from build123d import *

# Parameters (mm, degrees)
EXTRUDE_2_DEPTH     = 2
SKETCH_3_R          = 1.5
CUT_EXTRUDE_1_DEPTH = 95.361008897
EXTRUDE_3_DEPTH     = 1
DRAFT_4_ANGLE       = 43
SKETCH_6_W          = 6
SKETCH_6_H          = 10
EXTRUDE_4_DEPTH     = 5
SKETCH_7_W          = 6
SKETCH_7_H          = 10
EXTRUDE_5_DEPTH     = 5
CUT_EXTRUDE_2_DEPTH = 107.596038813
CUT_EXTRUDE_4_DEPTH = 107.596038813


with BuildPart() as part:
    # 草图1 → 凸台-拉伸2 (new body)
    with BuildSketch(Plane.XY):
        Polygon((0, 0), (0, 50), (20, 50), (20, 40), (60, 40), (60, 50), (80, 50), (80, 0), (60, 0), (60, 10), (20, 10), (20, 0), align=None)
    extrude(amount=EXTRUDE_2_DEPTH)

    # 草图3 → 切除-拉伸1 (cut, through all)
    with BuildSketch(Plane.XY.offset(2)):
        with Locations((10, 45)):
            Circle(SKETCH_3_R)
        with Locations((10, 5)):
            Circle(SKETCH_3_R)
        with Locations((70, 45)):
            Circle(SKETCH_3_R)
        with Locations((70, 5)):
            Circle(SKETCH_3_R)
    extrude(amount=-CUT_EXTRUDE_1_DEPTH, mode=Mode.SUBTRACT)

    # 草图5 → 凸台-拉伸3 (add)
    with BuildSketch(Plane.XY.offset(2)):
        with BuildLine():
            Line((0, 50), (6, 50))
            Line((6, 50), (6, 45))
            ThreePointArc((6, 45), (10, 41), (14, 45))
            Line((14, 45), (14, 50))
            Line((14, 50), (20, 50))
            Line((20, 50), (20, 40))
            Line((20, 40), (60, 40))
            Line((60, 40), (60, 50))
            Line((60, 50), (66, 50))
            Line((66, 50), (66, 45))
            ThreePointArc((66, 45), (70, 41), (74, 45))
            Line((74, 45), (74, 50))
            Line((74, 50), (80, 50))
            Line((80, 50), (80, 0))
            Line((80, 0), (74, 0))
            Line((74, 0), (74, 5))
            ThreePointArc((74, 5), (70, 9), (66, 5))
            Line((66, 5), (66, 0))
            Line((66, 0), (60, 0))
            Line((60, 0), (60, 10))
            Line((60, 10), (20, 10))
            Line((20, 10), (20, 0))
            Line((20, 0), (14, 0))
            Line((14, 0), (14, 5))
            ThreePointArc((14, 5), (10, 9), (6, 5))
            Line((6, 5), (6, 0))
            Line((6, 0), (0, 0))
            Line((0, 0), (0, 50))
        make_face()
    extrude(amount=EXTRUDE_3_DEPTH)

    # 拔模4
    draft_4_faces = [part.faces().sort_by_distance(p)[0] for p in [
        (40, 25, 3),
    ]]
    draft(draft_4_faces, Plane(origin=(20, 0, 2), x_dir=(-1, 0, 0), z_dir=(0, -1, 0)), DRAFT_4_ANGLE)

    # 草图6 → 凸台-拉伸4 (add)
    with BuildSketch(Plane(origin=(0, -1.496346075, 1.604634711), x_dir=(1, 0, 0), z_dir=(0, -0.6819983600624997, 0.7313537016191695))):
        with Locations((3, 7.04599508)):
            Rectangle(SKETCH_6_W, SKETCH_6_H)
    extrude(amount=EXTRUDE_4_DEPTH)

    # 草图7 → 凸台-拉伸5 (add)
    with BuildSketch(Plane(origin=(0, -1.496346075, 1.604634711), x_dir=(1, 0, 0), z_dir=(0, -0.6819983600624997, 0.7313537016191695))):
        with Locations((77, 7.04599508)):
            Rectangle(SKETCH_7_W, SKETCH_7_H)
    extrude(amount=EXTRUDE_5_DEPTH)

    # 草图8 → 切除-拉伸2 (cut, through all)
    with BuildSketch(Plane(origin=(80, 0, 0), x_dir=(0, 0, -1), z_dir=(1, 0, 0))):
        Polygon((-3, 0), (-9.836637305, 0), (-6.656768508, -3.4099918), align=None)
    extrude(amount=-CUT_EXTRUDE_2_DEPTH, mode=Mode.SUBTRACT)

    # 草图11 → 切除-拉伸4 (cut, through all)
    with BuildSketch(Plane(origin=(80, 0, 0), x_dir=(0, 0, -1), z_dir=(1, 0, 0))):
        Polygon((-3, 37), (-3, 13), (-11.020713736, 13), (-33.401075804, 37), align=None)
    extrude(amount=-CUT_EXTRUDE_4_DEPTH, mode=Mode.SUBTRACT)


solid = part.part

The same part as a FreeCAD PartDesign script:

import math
import FreeCAD as App
import Part
import Sketcher

V = App.Vector
Q = App.Units.Quantity


def faces_at(feature, points):
    """Names of the faces that lie closest to the given points."""
    faces = feature.Shape.Faces
    near = lambda p: min(range(len(faces)), key=lambda i: faces[i].distToShape(Part.Vertex(*p))[0])
    return sorted({f"Face{near(p) + 1}" for p in points})


def add_polygon(sketch, points):
    """Adds a closed chain of lines whose ends are joined by coincident constraints."""
    first, n = sketch.GeometryCount, len(points)
    for a, b in zip(points, points[1:] + points[:1]):
        sketch.addGeometry(Part.LineSegment(App.Vector(*a, 0), App.Vector(*b, 0)), False)
    for i in range(n):
        sketch.addConstraint(Sketcher.Constraint("Coincident", first + i, 2, first + (i + 1) % n, 1))

doc = App.newDocument("Part")
params = doc.addObject("Spreadsheet::Sheet", "Params")
for row, (alias, value) in enumerate([
    ("sketch1_width", "20 mm"),
    ("sketch1_width2", "40 mm"),
    ("sketch1_height", "50 mm"),
    ("sketch1_height2", "10 mm"),
    ("pad1_length", "2 mm"),
    ("sketch2_diameter", "3 mm"),
    ("sketch3_radius", "4 mm"),
    ("sketch3_width", "6 mm"),
    ("sketch3_width2", "40 mm"),
    ("sketch3_height", "50 mm"),
    ("sketch3_height2", "5 mm"),
    ("pad2_length", "1 mm"),
    ("draft_angle", "43 deg"),
    ("sketch4_width", "6 mm"),
    ("sketch4_height", "10 mm"),
    ("pad3_length", "5 mm"),
    ("sketch5_width", "6 mm"),
    ("sketch5_height", "10 mm"),
    ("pad4_length", "5 mm"),
    ("sketch6_length", "5 mm"),
    ("sketch7_width", "24 mm"),
], start=1):
    params.set(f"A{row}", alias)
    params.set(f"B{row}", "=" + value)
    params.setAlias(f"B{row}", alias)

body = doc.addObject("PartDesign::Body", "Body")

sketch1 = body.newObject("Sketcher::SketchObject", "Sketch")
sketch1.AttachmentSupport = (doc.getObject("XY_Plane"), [""])
sketch1.MapMode = "FlatFace"
add_polygon(sketch1, [(0, 50), (0, 0), (20, 0), (20, 10), (60, 10), (60, 0), (80, 0), (80, 50), (60, 50), (60, 40), (20, 40), (20, 50)])
sketch1.addConstraint([
    Sketcher.Constraint("Vertical", 0),
    Sketcher.Constraint("Horizontal", 1),
    Sketcher.Constraint("Vertical", 2),
    Sketcher.Constraint("Horizontal", 3),
    Sketcher.Constraint("Vertical", 4),
    Sketcher.Constraint("Horizontal", 5),
    Sketcher.Constraint("Vertical", 6),
    Sketcher.Constraint("Horizontal", 7),
    Sketcher.Constraint("Vertical", 8),
    Sketcher.Constraint("Horizontal", 9),
    Sketcher.Constraint("Vertical", 10),
    Sketcher.Constraint("Horizontal", 11),
    Sketcher.Constraint("Coincident", 0, 2, -1, 1),
    Sketcher.Constraint("PointOnObject", 4, 2, -1),
    Sketcher.Constraint("Horizontal", 7, 2, 10, 2),
    Sketcher.Constraint("Vertical", 4, 2, 7, 2),
    Sketcher.Constraint("Vertical", 2, 2, 9, 2),
    Sketcher.Constraint("Equal", 1, 5),
    Sketcher.Constraint("Equal", 4, 8),
    Sketcher.Constraint("DistanceX", 1, 1, 1, 2, Q("20 mm")),
    Sketcher.Constraint("DistanceX", 3, 1, 3, 2, Q("40 mm")),
    Sketcher.Constraint("DistanceY", 0, 2, 0, 1, Q("50 mm")),
    Sketcher.Constraint("DistanceY", 2, 1, 2, 2, Q("10 mm")),
])
sketch1.setExpression("Constraints[31]", "Params.sketch1_width")
sketch1.setExpression("Constraints[32]", "Params.sketch1_width2")
sketch1.setExpression("Constraints[33]", "Params.sketch1_height")
sketch1.setExpression("Constraints[34]", "Params.sketch1_height2")
pad1 = body.newObject("PartDesign::Pad", "Pad")
pad1.Profile = sketch1
pad1.setExpression("Length", "Params.pad1_length")

sketch2 = body.newObject("Sketcher::SketchObject", "Sketch001")
sketch2.AttachmentSupport = (doc.getObject("XY_Plane"), [""])
sketch2.MapMode = "FlatFace"
sketch2.AttachmentOffset = App.Placement(V(0, 0, 2), App.Rotation())
sketch2.addGeometry([
    Part.Circle(V(10, 45, 0), V(0, 0, 1), 1.5),
    Part.Circle(V(10, 5, 0), V(0, 0, 1), 1.5),
    Part.Circle(V(70, 45, 0), V(0, 0, 1), 1.5),
    Part.Circle(V(70, 5, 0), V(0, 0, 1), 1.5),
], False)
sketch2.addConstraint([
    Sketcher.Constraint("Equal", 0, 1),
    Sketcher.Constraint("Equal", 1, 2),
    Sketcher.Constraint("Equal", 2, 3),
    Sketcher.Constraint("Horizontal", 0, 3, 2, 3),
    Sketcher.Constraint("Horizontal", 1, 3, 3, 3),
    Sketcher.Constraint("Vertical", 0, 3, 1, 3),
    Sketcher.Constraint("Vertical", 2, 3, 3, 3),
    Sketcher.Constraint("Diameter", 0, Q("3 mm")),
    Sketcher.Constraint("DistanceX", -1, 1, 0, 3, Q("10 mm")),
    Sketcher.Constraint("DistanceY", -1, 1, 0, 3, Q("45 mm")),
    Sketcher.Constraint("DistanceY", -1, 1, 1, 3, Q("5 mm")),
    Sketcher.Constraint("DistanceX", -1, 1, 2, 3, Q("70 mm")),
])
sketch2.setExpression("Constraints[7]", "Params.sketch2_diameter")
pocket1 = body.newObject("PartDesign::Pocket", "Pocket")
pocket1.Profile = sketch2
pocket1.Type = "ThroughAll"

sketch3 = body.newObject("Sketcher::SketchObject", "Sketch002")
sketch3.AttachmentSupport = (doc.getObject("XY_Plane"), [""])
sketch3.MapMode = "FlatFace"
sketch3.AttachmentOffset = App.Placement(V(0, 0, 2), App.Rotation())
sketch3.addGeometry([
    Part.LineSegment(V(6, 50, 0), V(0, 50, 0)),
    Part.LineSegment(V(0, 50, 0), V(0, 0, 0)),
    Part.LineSegment(V(0, 0, 0), V(6, 0, 0)),
    Part.LineSegment(V(6, 0, 0), V(6, 5, 0)),
    Part.ArcOfCircle(Part.Circle(V(10, 5, 0), V(0, 0, 1), 4), math.radians(0), math.radians(180)),
    Part.LineSegment(V(14, 5, 0), V(14, 0, 0)),
    Part.LineSegment(V(14, 0, 0), V(20, 0, 0)),
    Part.LineSegment(V(20, 0, 0), V(20, 10, 0)),
    Part.LineSegment(V(20, 10, 0), V(60, 10, 0)),
    Part.LineSegment(V(60, 10, 0), V(60, 0, 0)),
    Part.LineSegment(V(60, 0, 0), V(66, 0, 0)),
    Part.LineSegment(V(66, 0, 0), V(66, 5, 0)),
    Part.ArcOfCircle(Part.Circle(V(70, 5, 0), V(0, 0, 1), 4), math.radians(0), math.radians(180)),
    Part.LineSegment(V(74, 5, 0), V(74, 0, 0)),
    Part.LineSegment(V(74, 0, 0), V(80, 0, 0)),
    Part.LineSegment(V(80, 0, 0), V(80, 50, 0)),
    Part.LineSegment(V(80, 50, 0), V(74, 50, 0)),
    Part.LineSegment(V(74, 50, 0), V(74, 45, 0)),
    Part.ArcOfCircle(Part.Circle(V(70, 45, 0), V(0, 0, 1), 4), math.radians(180), math.radians(360)),
    Part.LineSegment(V(66, 45, 0), V(66, 50, 0)),
    Part.LineSegment(V(66, 50, 0), V(60, 50, 0)),
    Part.LineSegment(V(60, 50, 0), V(60, 40, 0)),
    Part.LineSegment(V(60, 40, 0), V(20, 40, 0)),
    Part.LineSegment(V(20, 40, 0), V(20, 50, 0)),
    Part.LineSegment(V(20, 50, 0), V(14, 50, 0)),
    Part.LineSegment(V(14, 50, 0), V(14, 45, 0)),
    Part.ArcOfCircle(Part.Circle(V(10, 45, 0), V(0, 0, 1), 4), math.radians(180), math.radians(360)),
    Part.LineSegment(V(6, 45, 0), V(6, 50, 0)),
], False)
sketch3.addConstraint([
    Sketcher.Constraint("Coincident", 0, 2, 1, 1),
    Sketcher.Constraint("Coincident", 1, 2, 2, 1),
    Sketcher.Constraint("Coincident", 2, 2, 3, 1),
    Sketcher.Constraint("Tangent", 3, 2, 4, 2),
    Sketcher.Constraint("Tangent", 4, 1, 5, 1),
    Sketcher.Constraint("Coincident", 5, 2, 6, 1),
    Sketcher.Constraint("Coincident", 6, 2, 7, 1),
    Sketcher.Constraint("Coincident", 7, 2, 8, 1),
    Sketcher.Constraint("Coincident", 8, 2, 9, 1),
    Sketcher.Constraint("Coincident", 9, 2, 10, 1),
    Sketcher.Constraint("Coincident", 10, 2, 11, 1),
    Sketcher.Constraint("Tangent", 11, 2, 12, 2),
    Sketcher.Constraint("Tangent", 12, 1, 13, 1),
    Sketcher.Constraint("Coincident", 13, 2, 14, 1),
    Sketcher.Constraint("Coincident", 14, 2, 15, 1),
    Sketcher.Constraint("Coincident", 15, 2, 16, 1),
    Sketcher.Constraint("Coincident", 16, 2, 17, 1),
    Sketcher.Constraint("Tangent", 17, 2, 18, 2),
    Sketcher.Constraint("Tangent", 18, 1, 19, 1),
    Sketcher.Constraint("Coincident", 19, 2, 20, 1),
    Sketcher.Constraint("Coincident", 20, 2, 21, 1),
    Sketcher.Constraint("Coincident", 21, 2, 22, 1),
    Sketcher.Constraint("Coincident", 22, 2, 23, 1),
    Sketcher.Constraint("Coincident", 23, 2, 24, 1),
    Sketcher.Constraint("Coincident", 24, 2, 25, 1),
    Sketcher.Constraint("Tangent", 25, 2, 26, 2),
    Sketcher.Constraint("Tangent", 26, 1, 27, 1),
    Sketcher.Constraint("Coincident", 27, 2, 0, 1),
    Sketcher.Constraint("Horizontal", 0),
    Sketcher.Constraint("Vertical", 1),
    Sketcher.Constraint("Horizontal", 2),
    Sketcher.Constraint("Vertical", 3),
    Sketcher.Constraint("Vertical", 5),
    Sketcher.Constraint("Horizontal", 6),
    Sketcher.Constraint("Vertical", 7),
    Sketcher.Constraint("Horizontal", 8),
    Sketcher.Constraint("Vertical", 9),
    Sketcher.Constraint("Horizontal", 10),
    Sketcher.Constraint("Vertical", 11),
    Sketcher.Constraint("Vertical", 13),
    Sketcher.Constraint("Horizontal", 14),
    Sketcher.Constraint("Vertical", 15),
    Sketcher.Constraint("Horizontal", 16),
    Sketcher.Constraint("Vertical", 17),
    Sketcher.Constraint("Vertical", 19),
    Sketcher.Constraint("Horizontal", 20),
    Sketcher.Constraint("Vertical", 21),
    Sketcher.Constraint("Horizontal", 22),
    Sketcher.Constraint("Vertical", 23),
    Sketcher.Constraint("Horizontal", 24),
    Sketcher.Constraint("Vertical", 25),
    Sketcher.Constraint("Vertical", 27),
    Sketcher.Constraint("Coincident", 1, 2, -1, 1),
    Sketcher.Constraint("Equal", 4, 12),
    Sketcher.Constraint("Equal", 12, 18),
    Sketcher.Constraint("Equal", 18, 26),
    Sketcher.Constraint("PointOnObject", 5, 2, -1),
    Sketcher.Constraint("PointOnObject", 9, 2, -1),
    Sketcher.Constraint("PointOnObject", 13, 2, -1),
    Sketcher.Constraint("Horizontal", 4, 3, 12, 3),
    Sketcher.Constraint("Horizontal", 18, 3, 26, 3),
    Sketcher.Constraint("Horizontal", 0, 2, 15, 2),
    Sketcher.Constraint("Horizontal", 16, 2, 19, 2),
    Sketcher.Constraint("Horizontal", 20, 2, 23, 2),
    Sketcher.Constraint("Vertical", 12, 3, 18, 3),
    Sketcher.Constraint("Vertical", 4, 3, 26, 3),
    Sketcher.Constraint("Vertical", 9, 2, 20, 2),
    Sketcher.Constraint("Vertical", 7, 2, 22, 2),
    Sketcher.Constraint("Equal", 2, 6),
    Sketcher.Constraint("Equal", 6, 10),
    Sketcher.Constraint("Equal", 10, 14),
    Sketcher.Constraint("Equal", 13, 17),
    Sketcher.Constraint("Equal", 9, 21),
    Sketcher.Constraint("Radius", 4, Q("4 mm")),
    Sketcher.Constraint("DistanceX", 0, 2, 0, 1, Q("6 mm")),
    Sketcher.Constraint("DistanceX", 8, 1, 8, 2, Q("40 mm")),
    Sketcher.Constraint("DistanceY", 1, 2, 1, 1, Q("50 mm")),
    Sketcher.Constraint("DistanceY", 3, 1, 3, 2, Q("5 mm")),
    Sketcher.Constraint("DistanceY", 7, 1, 7, 2, Q("10 mm")),
])
sketch3.setExpression("Constraints[73]", "Params.sketch3_radius")
sketch3.setExpression("Constraints[74]", "Params.sketch3_width")
sketch3.setExpression("Constraints[75]", "Params.sketch3_width2")
sketch3.setExpression("Constraints[76]", "Params.sketch3_height")
sketch3.setExpression("Constraints[77]", "Params.sketch3_height2")
pad2 = body.newObject("PartDesign::Pad", "Pad001")
pad2.Profile = sketch3
pad2.setExpression("Length", "Params.pad2_length")
doc.recompute()

draft = body.newObject("PartDesign::Draft", "Draft")
draft.Base = (pad2, faces_at(pad2, [(40, 25, 3)]))
draft.NeutralPlane = (doc.getObject("XZ_Plane"), [""])
draft.setExpression("Angle", "Params.draft_angle")
draft.Reversed = False

sketch4 = body.newObject("Sketcher::SketchObject", "Sketch003")
sketch4.Placement = App.Placement(V(0, -1.496346, 1.604635), App.Rotation(V(1, 0, 0), V(0, 0.731353702, 0.68199836), V(0, -0.68199836, 0.731353702), "ZXY"))
add_polygon(sketch4, [(0, 12), (0, 2), (6, 2), (6, 12)])
sketch4.addConstraint([
    Sketcher.Constraint("Vertical", 0),
    Sketcher.Constraint("Horizontal", 1),
    Sketcher.Constraint("Vertical", 2),
    Sketcher.Constraint("Horizontal", 3),
    Sketcher.Constraint("PointOnObject", 0, 2, -2),
    Sketcher.Constraint("DistanceX", 1, 1, 1, 2, Q("6 mm")),
    Sketcher.Constraint("DistanceY", 0, 2, 0, 1, Q("10 mm")),
    Sketcher.Constraint("DistanceY", -1, 1, 0, 2, Q("2.045995 mm")),
])
sketch4.setExpression("Constraints[9]", "Params.sketch4_width")
sketch4.setExpression("Constraints[10]", "Params.sketch4_height")
pad3 = body.newObject("PartDesign::Pad", "Pad002")
pad3.Profile = sketch4
pad3.setExpression("Length", "Params.pad3_length")

sketch5 = body.newObject("Sketcher::SketchObject", "Sketch004")
sketch5.Placement = App.Placement(V(0, -1.496346, 1.604635), App.Rotation(V(1, 0, 0), V(0, 0.731353702, 0.68199836), V(0, -0.68199836, 0.731353702), "ZXY"))
add_polygon(sketch5, [(74, 12), (74, 2), (80, 2), (80, 12)])
sketch5.addConstraint([
    Sketcher.Constraint("Vertical", 0),
    Sketcher.Constraint("Horizontal", 1),
    Sketcher.Constraint("Vertical", 2),
    Sketcher.Constraint("Horizontal", 3),
    Sketcher.Constraint("DistanceX", 1, 1, 1, 2, Q("6 mm")),
    Sketcher.Constraint("DistanceY", 0, 2, 0, 1, Q("10 mm")),
    Sketcher.Constraint("DistanceX", -1, 1, 0, 2, Q("74 mm")),
    Sketcher.Constraint("DistanceY", -1, 1, 0, 2, Q("2.045995 mm")),
])
sketch5.setExpression("Constraints[8]", "Params.sketch5_width")
sketch5.setExpression("Constraints[9]", "Params.sketch5_height")
pad4 = body.newObject("PartDesign::Pad", "Pad003")
pad4.Profile = sketch5
pad4.setExpression("Length", "Params.pad4_length")

sketch6 = body.newObject("Sketcher::SketchObject", "Sketch005")
sketch6.AttachmentSupport = (doc.getObject("YZ_Plane"), [""])
sketch6.MapMode = "FlatFace"
sketch6.AttachmentOffset = App.Placement(V(0, 0, 80), App.Rotation())
add_polygon(sketch6, [(0, 3), (0, 9.8), (-3.4, 6.7)])
sketch6.addConstraint([
    Sketcher.Constraint("Vertical", 0),
    Sketcher.Constraint("PointOnObject", 0, 2, -2),
    Sketcher.Constraint("Perpendicular", 1, 2),
    Sketcher.Constraint("Angle", 1, Q("-137 deg")),
    Sketcher.Constraint("Distance", 2, Q("5 mm")),
    Sketcher.Constraint("DistanceY", -1, 1, 2, 2, Q("3 mm")),
])
sketch6.setExpression("Constraints[7]", "Params.sketch6_length")
pocket2 = body.newObject("PartDesign::Pocket", "Pocket001")
pocket2.Profile = sketch6
pocket2.Type = "ThroughAll"

sketch7 = body.newObject("Sketcher::SketchObject", "Sketch006")
sketch7.AttachmentSupport = (doc.getObject("YZ_Plane"), [""])
sketch7.MapMode = "FlatFace"
sketch7.AttachmentOffset = App.Placement(V(0, 0, 80), App.Rotation())
add_polygon(sketch7, [(13, 3), (37, 3), (37, 33), (13, 11)])
sketch7.addConstraint([
    Sketcher.Constraint("Horizontal", 0),
    Sketcher.Constraint("Vertical", 1),
    Sketcher.Constraint("Vertical", 3),
    Sketcher.Constraint("DistanceX", 0, 1, 0, 2, Q("24 mm")),
    Sketcher.Constraint("Angle", 2, Q("-137 deg")),
    Sketcher.Constraint("DistanceX", -1, 1, 0, 2, Q("37 mm")),
    Sketcher.Constraint("DistanceY", -1, 1, 0, 2, Q("3 mm")),
    Sketcher.Constraint("DistanceY", 1, 1, 1, 2, Q("30.401076 mm")),
])
sketch7.setExpression("Constraints[7]", "Params.sketch7_width")
pocket3 = body.newObject("PartDesign::Pocket", "Pocket002")
pocket3.Profile = sketch7
pocket3.Type = "ThroughAll"

doc.recompute()
